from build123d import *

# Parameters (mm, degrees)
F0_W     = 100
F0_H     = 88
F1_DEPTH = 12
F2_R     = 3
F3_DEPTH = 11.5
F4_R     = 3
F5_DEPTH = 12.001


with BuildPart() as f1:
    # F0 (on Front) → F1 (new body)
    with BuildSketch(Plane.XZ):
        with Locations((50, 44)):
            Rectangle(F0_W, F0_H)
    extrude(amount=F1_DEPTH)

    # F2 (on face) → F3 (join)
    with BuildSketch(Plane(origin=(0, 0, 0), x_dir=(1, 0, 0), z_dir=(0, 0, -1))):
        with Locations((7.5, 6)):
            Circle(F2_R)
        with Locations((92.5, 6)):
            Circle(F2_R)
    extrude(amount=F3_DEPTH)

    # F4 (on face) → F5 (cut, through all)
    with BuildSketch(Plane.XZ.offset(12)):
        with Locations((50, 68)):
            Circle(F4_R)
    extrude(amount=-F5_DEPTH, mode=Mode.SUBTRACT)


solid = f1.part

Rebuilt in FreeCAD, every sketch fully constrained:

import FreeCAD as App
import Part
import Sketcher

V = App.Vector

doc = App.newDocument("Part")
body = doc.addObject("PartDesign::Body", "Body")

sketch1 = body.newObject("Sketcher::SketchObject", "Sketch")
sketch1.AttachmentSupport = (doc.getObject("XZ_Plane"), [""])
sketch1.MapMode = "FlatFace"
sketch1.addGeometry([
    Part.LineSegment(V(0, 88, 0), V(0, 0, 0)),
    Part.LineSegment(V(0, 0, 0), V(100, 0, 0)),
    Part.LineSegment(V(100, 0, 0), V(100, 88, 0)),
    Part.LineSegment(V(100, 88, 0), V(0, 88, 0)),
], False)
sketch1.addConstraint([
    Sketcher.Constraint("Coincident", 0, 2, 1, 1),
    Sketcher.Constraint("Coincident", 1, 2, 2, 1),
    Sketcher.Constraint("Coincident", 2, 2, 3, 1),
    Sketcher.Constraint("Coincident", 3, 2, 0, 1),
    Sketcher.Constraint("Vertical", 0),
    Sketcher.Constraint("Horizontal", 1),
    Sketcher.Constraint("Vertical", 2),
    Sketcher.Constraint("Horizontal", 3),
    Sketcher.Constraint("Coincident", 0, 2, -1, 1),
    Sketcher.Constraint("DistanceX", 1, 1, 1, 2, 100.0),
    Sketcher.Constraint("DistanceY", 0, 2, 0, 1, 88.0),
])
pad1 = body.newObject("PartDesign::Pad", "Pad")
pad1.Profile = sketch1
pad1.Length = 12

sketch2 = body.newObject("Sketcher::SketchObject", "Sketch001")
sketch2.AttachmentSupport = (doc.getObject("XY_Plane"), [""])
sketch2.MapMode = "FlatFace"
sketch2.addGeometry([
    Part.Circle(V(7.5, -6, 0), V(0, 0, 1), 3),
    Part.Circle(V(92.5, -6, 0), V(0, 0, 1), 3),
], False)
sketch2.addConstraint([
    Sketcher.Constraint("Equal", 0, 1),
    Sketcher.Constraint("Horizontal", 0, 3, 1, 3),
    Sketcher.Constraint("Diameter", 0, 6.0),
    Sketcher.Constraint("DistanceY", 0, 3, -1, 1, 6.0),
    Sketcher.Constraint("DistanceX", 0, 3, 1, 3, 85.0),
    Sketcher.Constraint("DistanceX", -1, 1, 0, 3, 7.5),
])
pad2 = body.newObject("PartDesign::Pad", "Pad001")
pad2.Profile = sketch2
pad2.Length = 11.5
pad2.Reversed = True

sketch3 = body.newObject("Sketcher::SketchObject", "Sketch002")
sketch3.AttachmentSupport = (doc.getObject("XZ_Plane"), [""])
sketch3.MapMode = "FlatFace"
sketch3.AttachmentOffset = App.Placement(V(0, 0, 12), App.Rotation())
sketch3.addGeometry(Part.Circle(V(50, 68, 0), V(0, 0, 1), 3), False)
sketch3.addConstraint([
    Sketcher.Constraint("Diameter", 0, 6.0),
    Sketcher.Constraint("DistanceX", -1, 1, 0, 3, 50.0),
    Sketcher.Constraint("DistanceY", -1, 1, 0, 3, 68.0),
])
pocket1 = body.newObject("PartDesign::Pocket", "Pocket")
pocket1.Profile = sketch3
pocket1.Type = "ThroughAll"

doc.recompute()
